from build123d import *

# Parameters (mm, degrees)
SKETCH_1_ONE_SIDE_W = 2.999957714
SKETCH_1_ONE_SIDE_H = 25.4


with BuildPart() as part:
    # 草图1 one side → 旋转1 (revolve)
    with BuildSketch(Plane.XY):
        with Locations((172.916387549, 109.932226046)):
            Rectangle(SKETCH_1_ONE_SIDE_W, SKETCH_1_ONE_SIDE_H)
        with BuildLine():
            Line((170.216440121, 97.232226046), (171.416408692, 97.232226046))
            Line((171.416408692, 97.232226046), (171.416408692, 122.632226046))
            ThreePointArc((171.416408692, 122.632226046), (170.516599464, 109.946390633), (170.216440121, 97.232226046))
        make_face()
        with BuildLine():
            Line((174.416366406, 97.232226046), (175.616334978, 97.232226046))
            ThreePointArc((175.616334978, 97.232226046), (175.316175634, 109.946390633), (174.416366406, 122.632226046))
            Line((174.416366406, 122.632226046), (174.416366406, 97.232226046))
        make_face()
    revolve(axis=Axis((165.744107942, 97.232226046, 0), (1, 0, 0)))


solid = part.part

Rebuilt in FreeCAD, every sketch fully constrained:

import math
import FreeCAD as App
import Part
import Sketcher

doc = App.newDocument("Part")
body = doc.addObject("PartDesign::Body", "Body")

# Sketch on XY plane
sketch1 = body.newObject("Sketcher::SketchObject", "Sketch")
sketch1.AttachmentSupport = (doc.getObject("XY_Plane"), [""])
sketch1.MapMode = "FlatFace"
sketch1.addGeometry([
    Part.LineSegment(App.Vector(174.4, 122.6, 0), App.Vector(171.4, 122.6, 0)),
    Part.ArcOfCircle(Part.Circle(App.Vector(439.6, 97.2, 0), App.Vector(0, 0, 1), 269.4), math.radians(174.59), math.radians(180)),
    Part.LineSegment(App.Vector(170.2, 97.2, 0), App.Vector(175.6, 97.2, 0)),
    Part.ArcOfCircle(Part.Circle(App.Vector(-93.8, 97.2, 0), App.Vector(0, 0, 1), 269.4), math.radians(0), math.radians(5.41)),
], False)
sketch1.addGeometry(Part.LineSegment(App.Vector(-93.8, 97.2, 0), App.Vector(439.6, 97.2, 0)), True)  # axis
sketch1.addConstraint([
    Sketcher.Constraint("Coincident", 0, 2, 1, 1),
    Sketcher.Constraint("Coincident", 1, 2, 2, 1),
    Sketcher.Constraint("Coincident", 2, 2, 3, 1),
    Sketcher.Constraint("Coincident", 3, 2, 0, 1),
    Sketcher.Constraint("Horizontal", 0),
    Sketcher.Constraint("Horizontal", 2),
    Sketcher.Constraint("Horizontal", 4),
    Sketcher.Constraint("Coincident", 4, 1, 3, 3),
    Sketcher.Constraint("Coincident", 4, 2, 1, 3),
    Sketcher.Constraint("Equal", 1, 3),
    Sketcher.Constraint("Horizontal", 3, 3, 1, 2),
    Sketcher.Constraint("DistanceY", 3, 3, 0, 2, 25.4),
    Sketcher.Constraint("Radius", 1, 269.423691),
    Sketcher.Constraint("DistanceX", 4, 1, 4, 2, 533.447488),
    Sketcher.Constraint("DistanceX", -1, 1, 1, 3, 439.640131),
    Sketcher.Constraint("DistanceY", -1, 1, 1, 3, 97.232226),
])
revolution = body.newObject("PartDesign::Revolution", "Revolution")
revolution.Profile = sketch1
revolution.ReferenceAxis = (sketch1, ["Axis0"])
revolution.Angle = 360

doc.recompute()
